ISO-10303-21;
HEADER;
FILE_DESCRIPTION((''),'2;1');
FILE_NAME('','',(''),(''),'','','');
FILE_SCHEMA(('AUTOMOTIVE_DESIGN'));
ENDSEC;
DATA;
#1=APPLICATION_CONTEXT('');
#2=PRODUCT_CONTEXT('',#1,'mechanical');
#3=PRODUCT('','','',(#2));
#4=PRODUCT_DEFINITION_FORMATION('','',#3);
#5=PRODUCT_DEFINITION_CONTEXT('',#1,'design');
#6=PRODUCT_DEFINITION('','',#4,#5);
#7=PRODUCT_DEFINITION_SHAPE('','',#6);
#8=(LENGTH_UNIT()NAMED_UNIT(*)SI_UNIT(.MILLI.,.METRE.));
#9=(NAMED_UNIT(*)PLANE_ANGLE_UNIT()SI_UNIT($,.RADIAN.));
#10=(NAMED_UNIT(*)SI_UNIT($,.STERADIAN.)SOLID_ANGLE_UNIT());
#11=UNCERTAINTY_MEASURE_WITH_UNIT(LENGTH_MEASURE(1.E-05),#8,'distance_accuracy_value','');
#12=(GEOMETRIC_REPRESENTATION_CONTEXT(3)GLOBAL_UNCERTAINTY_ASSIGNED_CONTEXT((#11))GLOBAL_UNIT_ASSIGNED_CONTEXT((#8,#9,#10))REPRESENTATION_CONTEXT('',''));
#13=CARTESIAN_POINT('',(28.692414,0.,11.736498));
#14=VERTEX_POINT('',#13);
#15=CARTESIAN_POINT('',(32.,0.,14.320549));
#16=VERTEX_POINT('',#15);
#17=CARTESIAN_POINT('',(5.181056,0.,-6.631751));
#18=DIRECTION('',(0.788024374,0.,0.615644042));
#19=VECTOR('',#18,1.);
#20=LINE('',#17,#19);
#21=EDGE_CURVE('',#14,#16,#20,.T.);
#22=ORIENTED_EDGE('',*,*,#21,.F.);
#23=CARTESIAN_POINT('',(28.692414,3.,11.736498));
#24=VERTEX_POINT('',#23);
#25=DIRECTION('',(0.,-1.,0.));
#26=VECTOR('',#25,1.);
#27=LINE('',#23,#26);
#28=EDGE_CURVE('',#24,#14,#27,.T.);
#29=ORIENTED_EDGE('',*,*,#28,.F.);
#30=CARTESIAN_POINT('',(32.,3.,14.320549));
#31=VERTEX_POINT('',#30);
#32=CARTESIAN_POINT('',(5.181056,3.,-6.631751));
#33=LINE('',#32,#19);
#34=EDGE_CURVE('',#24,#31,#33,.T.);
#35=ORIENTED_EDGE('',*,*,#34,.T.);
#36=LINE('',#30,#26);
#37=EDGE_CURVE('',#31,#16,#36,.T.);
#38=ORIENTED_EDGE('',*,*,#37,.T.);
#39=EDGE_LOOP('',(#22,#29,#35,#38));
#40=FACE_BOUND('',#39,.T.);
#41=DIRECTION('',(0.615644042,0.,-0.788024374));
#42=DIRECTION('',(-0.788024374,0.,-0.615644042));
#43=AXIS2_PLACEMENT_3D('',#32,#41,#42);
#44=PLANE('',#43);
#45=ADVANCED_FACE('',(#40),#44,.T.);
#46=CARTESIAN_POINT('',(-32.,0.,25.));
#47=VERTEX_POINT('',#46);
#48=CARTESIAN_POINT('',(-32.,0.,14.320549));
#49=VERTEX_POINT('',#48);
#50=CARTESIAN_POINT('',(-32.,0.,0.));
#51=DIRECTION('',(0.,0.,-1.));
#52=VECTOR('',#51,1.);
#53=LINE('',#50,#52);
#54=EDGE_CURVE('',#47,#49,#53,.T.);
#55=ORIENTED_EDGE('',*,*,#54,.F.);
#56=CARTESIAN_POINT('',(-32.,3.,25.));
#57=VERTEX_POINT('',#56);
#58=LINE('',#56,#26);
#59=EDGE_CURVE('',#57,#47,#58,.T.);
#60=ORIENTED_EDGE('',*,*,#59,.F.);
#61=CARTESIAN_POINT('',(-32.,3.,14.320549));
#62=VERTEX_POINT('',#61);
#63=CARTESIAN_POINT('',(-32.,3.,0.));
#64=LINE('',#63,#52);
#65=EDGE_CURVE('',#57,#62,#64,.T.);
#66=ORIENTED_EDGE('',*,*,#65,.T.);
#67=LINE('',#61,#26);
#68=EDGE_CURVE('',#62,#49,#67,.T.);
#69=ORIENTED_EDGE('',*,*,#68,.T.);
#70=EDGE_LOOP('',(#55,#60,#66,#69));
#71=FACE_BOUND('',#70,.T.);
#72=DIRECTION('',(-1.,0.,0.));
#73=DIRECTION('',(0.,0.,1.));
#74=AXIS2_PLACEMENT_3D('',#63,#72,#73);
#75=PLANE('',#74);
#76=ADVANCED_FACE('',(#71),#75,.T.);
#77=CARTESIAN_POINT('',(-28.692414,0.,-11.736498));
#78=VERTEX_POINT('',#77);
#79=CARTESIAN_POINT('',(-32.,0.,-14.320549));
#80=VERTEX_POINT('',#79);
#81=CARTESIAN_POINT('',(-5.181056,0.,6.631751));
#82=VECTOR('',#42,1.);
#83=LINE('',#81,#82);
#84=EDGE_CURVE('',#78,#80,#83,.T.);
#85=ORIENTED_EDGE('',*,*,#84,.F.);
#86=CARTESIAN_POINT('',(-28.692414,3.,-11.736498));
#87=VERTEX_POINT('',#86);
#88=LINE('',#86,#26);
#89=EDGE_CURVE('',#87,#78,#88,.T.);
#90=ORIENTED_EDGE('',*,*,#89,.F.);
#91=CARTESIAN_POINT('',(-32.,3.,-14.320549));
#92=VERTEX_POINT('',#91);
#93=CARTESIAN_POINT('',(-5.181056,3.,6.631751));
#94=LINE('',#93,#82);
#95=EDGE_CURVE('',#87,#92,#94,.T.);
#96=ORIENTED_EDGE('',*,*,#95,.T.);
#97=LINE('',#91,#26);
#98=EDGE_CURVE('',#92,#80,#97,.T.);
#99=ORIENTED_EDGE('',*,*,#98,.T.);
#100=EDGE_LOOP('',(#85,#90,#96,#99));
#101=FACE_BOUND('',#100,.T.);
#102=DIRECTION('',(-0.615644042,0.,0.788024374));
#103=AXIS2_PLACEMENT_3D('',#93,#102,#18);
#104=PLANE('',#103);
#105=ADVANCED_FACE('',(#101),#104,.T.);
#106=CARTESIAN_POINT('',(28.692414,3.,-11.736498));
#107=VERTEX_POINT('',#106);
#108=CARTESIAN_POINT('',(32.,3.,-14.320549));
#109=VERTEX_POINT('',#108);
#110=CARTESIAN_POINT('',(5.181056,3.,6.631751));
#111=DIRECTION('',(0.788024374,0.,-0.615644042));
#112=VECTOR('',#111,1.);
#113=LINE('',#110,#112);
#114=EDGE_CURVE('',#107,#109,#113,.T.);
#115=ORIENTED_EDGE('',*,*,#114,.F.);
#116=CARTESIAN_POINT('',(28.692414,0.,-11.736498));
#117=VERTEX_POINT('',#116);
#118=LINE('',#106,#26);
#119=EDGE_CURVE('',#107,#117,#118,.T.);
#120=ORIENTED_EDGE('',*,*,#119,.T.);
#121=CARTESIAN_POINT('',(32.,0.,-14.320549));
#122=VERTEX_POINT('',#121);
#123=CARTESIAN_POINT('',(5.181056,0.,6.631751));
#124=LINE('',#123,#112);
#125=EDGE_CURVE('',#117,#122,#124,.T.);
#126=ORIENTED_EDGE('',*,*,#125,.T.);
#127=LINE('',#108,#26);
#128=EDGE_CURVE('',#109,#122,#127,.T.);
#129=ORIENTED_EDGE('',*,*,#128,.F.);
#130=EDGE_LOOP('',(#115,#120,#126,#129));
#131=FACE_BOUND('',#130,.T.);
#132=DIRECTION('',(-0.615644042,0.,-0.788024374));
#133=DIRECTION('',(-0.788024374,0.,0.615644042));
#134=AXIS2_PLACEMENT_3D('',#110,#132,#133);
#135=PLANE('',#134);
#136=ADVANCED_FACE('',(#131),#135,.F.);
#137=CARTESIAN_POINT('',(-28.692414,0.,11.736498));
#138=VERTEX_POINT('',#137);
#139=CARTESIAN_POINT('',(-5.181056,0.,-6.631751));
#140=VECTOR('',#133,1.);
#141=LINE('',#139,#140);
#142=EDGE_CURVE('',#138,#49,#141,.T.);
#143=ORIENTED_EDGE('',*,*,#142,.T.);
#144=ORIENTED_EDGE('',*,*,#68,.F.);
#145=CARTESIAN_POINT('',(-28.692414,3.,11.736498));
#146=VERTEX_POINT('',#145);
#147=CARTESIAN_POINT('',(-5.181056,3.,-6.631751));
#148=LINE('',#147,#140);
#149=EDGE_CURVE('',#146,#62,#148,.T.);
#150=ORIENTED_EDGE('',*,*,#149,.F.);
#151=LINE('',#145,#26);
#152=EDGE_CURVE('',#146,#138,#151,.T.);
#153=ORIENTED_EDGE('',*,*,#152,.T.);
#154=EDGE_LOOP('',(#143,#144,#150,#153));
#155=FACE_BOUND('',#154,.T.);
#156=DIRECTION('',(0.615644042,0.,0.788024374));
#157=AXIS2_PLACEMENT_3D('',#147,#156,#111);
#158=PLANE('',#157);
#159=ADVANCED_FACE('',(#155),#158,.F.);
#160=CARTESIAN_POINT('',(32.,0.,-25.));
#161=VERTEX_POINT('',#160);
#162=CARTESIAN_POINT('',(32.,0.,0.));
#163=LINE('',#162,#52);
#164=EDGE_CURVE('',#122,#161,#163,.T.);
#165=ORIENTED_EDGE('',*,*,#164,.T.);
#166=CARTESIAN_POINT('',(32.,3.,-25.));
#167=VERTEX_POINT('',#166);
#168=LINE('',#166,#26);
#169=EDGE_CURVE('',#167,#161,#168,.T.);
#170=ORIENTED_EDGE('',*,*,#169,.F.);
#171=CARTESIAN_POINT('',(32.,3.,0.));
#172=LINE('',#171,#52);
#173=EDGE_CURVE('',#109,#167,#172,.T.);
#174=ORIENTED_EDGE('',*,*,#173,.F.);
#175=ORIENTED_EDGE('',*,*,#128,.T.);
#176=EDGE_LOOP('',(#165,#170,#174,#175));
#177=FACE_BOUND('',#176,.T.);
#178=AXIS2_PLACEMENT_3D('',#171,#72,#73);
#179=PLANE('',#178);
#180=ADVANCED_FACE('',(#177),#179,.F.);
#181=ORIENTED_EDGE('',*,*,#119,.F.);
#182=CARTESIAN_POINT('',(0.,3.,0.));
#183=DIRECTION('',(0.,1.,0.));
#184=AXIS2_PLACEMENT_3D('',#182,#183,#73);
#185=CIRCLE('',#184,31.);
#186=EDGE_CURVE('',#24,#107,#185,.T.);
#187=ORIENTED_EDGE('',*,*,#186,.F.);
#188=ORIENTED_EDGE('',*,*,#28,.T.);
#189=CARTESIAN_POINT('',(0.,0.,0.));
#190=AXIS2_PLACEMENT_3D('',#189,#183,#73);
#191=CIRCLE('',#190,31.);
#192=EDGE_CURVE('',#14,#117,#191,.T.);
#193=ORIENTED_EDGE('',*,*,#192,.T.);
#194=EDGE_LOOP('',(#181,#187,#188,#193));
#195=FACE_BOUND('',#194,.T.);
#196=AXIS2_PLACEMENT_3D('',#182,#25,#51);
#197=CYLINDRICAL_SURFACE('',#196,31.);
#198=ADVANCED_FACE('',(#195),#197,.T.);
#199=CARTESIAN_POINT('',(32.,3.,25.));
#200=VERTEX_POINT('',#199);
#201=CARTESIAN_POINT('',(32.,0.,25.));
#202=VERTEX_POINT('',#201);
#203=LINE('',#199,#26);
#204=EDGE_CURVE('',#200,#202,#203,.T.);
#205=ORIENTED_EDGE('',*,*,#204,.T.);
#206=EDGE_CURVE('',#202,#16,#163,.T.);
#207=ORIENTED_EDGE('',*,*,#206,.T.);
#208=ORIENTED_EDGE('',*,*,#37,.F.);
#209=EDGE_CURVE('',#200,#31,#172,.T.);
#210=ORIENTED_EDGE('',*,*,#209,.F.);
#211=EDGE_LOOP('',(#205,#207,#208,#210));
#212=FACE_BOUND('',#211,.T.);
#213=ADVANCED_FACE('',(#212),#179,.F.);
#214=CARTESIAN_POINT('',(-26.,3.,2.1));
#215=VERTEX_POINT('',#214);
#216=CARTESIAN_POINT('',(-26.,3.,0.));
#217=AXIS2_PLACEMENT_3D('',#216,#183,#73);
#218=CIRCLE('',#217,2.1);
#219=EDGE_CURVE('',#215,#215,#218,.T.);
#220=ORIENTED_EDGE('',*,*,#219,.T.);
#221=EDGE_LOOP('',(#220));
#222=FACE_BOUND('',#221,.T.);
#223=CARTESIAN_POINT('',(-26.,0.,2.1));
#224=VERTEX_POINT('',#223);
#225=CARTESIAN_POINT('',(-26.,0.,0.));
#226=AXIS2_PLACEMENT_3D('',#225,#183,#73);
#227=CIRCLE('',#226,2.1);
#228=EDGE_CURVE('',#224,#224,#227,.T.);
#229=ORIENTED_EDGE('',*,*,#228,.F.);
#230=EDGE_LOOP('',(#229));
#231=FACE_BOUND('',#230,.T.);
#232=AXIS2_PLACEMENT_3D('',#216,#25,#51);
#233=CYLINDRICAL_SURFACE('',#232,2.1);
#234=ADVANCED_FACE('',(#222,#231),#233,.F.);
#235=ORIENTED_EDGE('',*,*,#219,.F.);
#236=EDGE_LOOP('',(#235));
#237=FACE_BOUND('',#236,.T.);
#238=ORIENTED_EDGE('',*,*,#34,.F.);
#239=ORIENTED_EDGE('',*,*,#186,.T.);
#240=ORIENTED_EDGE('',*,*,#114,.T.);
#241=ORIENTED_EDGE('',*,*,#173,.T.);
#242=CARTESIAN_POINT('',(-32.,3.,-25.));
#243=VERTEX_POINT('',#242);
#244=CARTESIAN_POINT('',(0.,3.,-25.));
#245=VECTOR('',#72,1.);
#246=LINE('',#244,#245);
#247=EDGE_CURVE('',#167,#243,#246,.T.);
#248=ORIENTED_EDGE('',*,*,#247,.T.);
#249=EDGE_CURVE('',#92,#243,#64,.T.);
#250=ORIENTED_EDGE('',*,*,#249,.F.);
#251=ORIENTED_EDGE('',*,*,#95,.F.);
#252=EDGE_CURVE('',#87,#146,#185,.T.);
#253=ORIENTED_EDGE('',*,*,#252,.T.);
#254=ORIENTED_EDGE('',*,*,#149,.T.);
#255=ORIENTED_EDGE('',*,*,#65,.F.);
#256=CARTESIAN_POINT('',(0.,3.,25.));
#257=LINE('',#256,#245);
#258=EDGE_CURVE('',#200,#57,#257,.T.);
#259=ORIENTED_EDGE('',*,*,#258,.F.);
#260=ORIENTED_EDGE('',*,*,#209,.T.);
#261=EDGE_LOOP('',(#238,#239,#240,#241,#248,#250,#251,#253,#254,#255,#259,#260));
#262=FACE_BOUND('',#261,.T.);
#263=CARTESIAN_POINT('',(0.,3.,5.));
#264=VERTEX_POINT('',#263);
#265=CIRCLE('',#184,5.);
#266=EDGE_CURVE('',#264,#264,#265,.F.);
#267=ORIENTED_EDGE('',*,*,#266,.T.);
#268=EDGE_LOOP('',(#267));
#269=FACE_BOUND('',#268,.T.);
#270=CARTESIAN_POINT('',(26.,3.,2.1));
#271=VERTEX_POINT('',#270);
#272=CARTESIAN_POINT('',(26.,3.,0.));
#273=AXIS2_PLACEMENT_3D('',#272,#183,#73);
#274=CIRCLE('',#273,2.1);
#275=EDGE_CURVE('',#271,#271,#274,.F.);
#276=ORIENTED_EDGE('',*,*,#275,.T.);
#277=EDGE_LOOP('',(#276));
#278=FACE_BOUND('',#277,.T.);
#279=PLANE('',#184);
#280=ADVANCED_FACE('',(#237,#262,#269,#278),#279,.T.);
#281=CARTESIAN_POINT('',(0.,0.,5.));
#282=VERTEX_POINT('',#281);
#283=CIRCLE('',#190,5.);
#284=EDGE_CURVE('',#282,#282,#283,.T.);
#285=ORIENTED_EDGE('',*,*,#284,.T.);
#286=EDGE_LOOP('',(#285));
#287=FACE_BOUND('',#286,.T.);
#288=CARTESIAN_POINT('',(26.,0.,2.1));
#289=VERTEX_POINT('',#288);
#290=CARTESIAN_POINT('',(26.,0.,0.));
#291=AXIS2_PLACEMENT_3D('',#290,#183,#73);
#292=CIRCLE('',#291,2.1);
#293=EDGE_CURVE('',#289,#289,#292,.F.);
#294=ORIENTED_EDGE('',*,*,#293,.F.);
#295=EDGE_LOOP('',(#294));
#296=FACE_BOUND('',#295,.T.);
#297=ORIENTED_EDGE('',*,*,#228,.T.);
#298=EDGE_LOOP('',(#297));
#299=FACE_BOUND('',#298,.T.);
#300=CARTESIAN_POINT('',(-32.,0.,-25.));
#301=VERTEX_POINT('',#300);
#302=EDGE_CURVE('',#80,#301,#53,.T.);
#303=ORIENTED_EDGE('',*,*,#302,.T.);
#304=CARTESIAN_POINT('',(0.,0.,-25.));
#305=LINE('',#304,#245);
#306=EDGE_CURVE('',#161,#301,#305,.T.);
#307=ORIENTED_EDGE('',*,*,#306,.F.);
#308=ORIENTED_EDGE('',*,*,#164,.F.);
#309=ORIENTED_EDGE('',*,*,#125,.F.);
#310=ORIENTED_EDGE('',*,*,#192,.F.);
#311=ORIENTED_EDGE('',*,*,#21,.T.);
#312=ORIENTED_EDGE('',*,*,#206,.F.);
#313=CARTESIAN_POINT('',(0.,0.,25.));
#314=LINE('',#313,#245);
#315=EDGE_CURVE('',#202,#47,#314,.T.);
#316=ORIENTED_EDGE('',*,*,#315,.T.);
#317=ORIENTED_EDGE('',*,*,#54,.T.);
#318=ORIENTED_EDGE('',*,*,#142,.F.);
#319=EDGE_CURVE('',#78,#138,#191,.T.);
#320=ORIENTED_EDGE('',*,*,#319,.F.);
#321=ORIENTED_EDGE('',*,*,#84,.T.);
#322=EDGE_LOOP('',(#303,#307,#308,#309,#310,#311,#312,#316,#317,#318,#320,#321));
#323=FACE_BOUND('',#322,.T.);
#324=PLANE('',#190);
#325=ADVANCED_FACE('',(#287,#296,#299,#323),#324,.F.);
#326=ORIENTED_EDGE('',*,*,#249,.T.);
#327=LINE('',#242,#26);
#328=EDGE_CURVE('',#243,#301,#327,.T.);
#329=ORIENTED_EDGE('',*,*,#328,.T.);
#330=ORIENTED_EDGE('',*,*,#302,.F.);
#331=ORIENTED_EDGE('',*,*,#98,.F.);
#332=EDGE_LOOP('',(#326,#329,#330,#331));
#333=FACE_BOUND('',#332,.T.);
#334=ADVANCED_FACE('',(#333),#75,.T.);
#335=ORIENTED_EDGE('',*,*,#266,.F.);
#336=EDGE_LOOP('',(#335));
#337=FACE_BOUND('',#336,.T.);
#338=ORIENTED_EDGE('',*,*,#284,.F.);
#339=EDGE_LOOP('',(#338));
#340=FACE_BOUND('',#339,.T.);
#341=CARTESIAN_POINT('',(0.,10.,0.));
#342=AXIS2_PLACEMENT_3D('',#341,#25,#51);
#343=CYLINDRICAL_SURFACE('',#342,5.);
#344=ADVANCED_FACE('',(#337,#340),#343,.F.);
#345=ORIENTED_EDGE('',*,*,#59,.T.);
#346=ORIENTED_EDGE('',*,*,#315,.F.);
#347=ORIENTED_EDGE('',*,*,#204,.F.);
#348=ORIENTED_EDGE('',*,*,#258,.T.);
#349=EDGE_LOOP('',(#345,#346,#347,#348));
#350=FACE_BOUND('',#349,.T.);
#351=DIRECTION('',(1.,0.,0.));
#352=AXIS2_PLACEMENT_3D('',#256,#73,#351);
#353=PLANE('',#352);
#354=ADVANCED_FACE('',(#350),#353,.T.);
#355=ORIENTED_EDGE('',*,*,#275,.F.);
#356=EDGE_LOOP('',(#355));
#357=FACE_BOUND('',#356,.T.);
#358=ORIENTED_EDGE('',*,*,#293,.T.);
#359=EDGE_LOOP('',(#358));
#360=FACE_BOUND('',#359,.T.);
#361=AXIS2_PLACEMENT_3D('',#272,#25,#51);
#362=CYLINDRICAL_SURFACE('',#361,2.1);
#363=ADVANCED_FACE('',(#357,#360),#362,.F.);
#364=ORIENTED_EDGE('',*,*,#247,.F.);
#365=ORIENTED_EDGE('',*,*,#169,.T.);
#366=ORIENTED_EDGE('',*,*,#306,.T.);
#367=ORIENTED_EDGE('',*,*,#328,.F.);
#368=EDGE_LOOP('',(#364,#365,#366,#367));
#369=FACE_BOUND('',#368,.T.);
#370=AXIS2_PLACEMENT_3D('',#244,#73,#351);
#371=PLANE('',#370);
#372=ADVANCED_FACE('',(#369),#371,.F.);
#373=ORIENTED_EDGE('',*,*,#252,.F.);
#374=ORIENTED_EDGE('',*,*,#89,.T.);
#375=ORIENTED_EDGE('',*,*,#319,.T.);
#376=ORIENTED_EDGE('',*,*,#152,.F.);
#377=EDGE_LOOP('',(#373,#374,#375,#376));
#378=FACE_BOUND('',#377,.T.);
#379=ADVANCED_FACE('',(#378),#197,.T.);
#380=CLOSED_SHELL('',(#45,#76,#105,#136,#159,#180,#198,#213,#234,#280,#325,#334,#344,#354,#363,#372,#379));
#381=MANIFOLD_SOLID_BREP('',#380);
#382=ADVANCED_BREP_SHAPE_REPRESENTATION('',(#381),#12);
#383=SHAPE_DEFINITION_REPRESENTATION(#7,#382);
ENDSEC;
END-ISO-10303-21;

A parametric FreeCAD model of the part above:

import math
import FreeCAD as App
import Part
import Sketcher

V = App.Vector
Q = App.Units.Quantity

doc = App.newDocument("Part")
body = doc.addObject("PartDesign::Body", "Body")

sketch1 = body.newObject("Sketcher::SketchObject", "Sketch")
sketch1.AttachmentSupport = (doc.getObject("XZ_Plane"), [""])
sketch1.MapMode = "FlatFace"
sketch1.addGeometry([
    Part.LineSegment(V(32, 25, 0), V(32, 14.320549, 0)),
    Part.LineSegment(V(32, 14.320549, 0), V(28.692414, 11.736498, 0)),
    Part.ArcOfCircle(Part.Circle(V(0, 0, 0), V(0, 0, 1), 31), math.radians(-22.246786), math.radians(22.246786)),
    Part.LineSegment(V(28.692414, -11.736498, 0), V(32, -14.320549, 0)),
    Part.LineSegment(V(32, -14.320549, 0), V(32, -25, 0)),
    Part.LineSegment(V(32, -25, 0), V(-32, -25, 0)),
    Part.LineSegment(V(-32, -25, 0), V(-32, -14.320549, 0)),
    Part.LineSegment(V(-32, -14.320549, 0), V(-28.692414, -11.736498, 0)),
    Part.ArcOfCircle(Part.Circle(V(0, 0, 0), V(0, 0, 1), 31), math.radians(157.753214), math.radians(202.246786)),
    Part.LineSegment(V(-28.692414, 11.736498, 0), V(-32, 14.320549, 0)),
    Part.LineSegment(V(-32, 14.320549, 0), V(-32, 25, 0)),
    Part.LineSegment(V(-32, 25, 0), V(32, 25, 0)),
    Part.Circle(V(-26, 0, 0), V(0, 0, 1), 2.1),
    Part.Circle(V(26, 0, 0), V(0, 0, 1), 2.1),
], False)
sketch1.addConstraint([
    Sketcher.Constraint("Coincident", 0, 2, 1, 1),
    Sketcher.Constraint("Coincident", 1, 2, 2, 2),
    Sketcher.Constraint("Coincident", 2, 1, 3, 1),
    Sketcher.Constraint("Coincident", 3, 2, 4, 1),
    Sketcher.Constraint("Coincident", 4, 2, 5, 1),
    Sketcher.Constraint("Coincident", 5, 2, 6, 1),
    Sketcher.Constraint("Coincident", 6, 2, 7, 1),
    Sketcher.Constraint("Coincident", 7, 2, 8, 2),
    Sketcher.Constraint("Coincident", 8, 1, 9, 1),
    Sketcher.Constraint("Coincident", 9, 2, 10, 1),
    Sketcher.Constraint("Coincident", 10, 2, 11, 1),
    Sketcher.Constraint("Coincident", 11, 2, 0, 1),
    Sketcher.Constraint("Vertical", 0),
    Sketcher.Constraint("Vertical", 4),
    Sketcher.Constraint("Horizontal", 5),
    Sketcher.Constraint("Vertical", 6),
    Sketcher.Constraint("Vertical", 10),
    Sketcher.Constraint("Horizontal", 11),
    Sketcher.Constraint("Coincident", 2, 3, -1, 1),
    Sketcher.Constraint("Coincident", 8, 3, -1, 1),
    Sketcher.Constraint("Equal", 2, 8),
    Sketcher.Constraint("Equal", 12, 13),
    Sketcher.Constraint("Symmetric", 12, 3, 13, 3, -1, 1),
    Sketcher.Constraint("Symmetric", 0, 2, 6, 2, -1, 1),
    Sketcher.Constraint("Symmetric", 3, 2, 9, 2, -1, 1),
    Sketcher.Constraint("Symmetric", 3, 2, 6, 2, -2),
    Sketcher.Constraint("PointOnObject", 12, 3, -1),
    Sketcher.Constraint("Parallel", 1, 7),
    Sketcher.Constraint("Parallel", 3, 9),
    Sketcher.Constraint("Horizontal", 2, 1, 7, 2),
    Sketcher.Constraint("Equal", 0, 4),
    Sketcher.Constraint("Radius", 2, Q("31 mm")),
    Sketcher.Constraint("Diameter", 12, Q("4.2 mm")),
    Sketcher.Constraint("DistanceX", 5, 2, 5, 1, Q("64 mm")),
    Sketcher.Constraint("DistanceX", 12, 3, -1, 1, Q("26 mm")),
    Sketcher.Constraint("DistanceY", 4, 2, -1, 1, Q("25 mm")),
    Sketcher.Constraint("DistanceY", 0, 2, 0, 1, Q("10.679451 mm")),
    Sketcher.Constraint("DistanceY", 1, 2, 0, 2, Q("2.584052 mm")),
])
pad1 = body.newObject("PartDesign::Pad", "Pad")
pad1.Profile = sketch1
pad1.Length = 3
pad1.Reversed = True

sketch2 = body.newObject("Sketcher::SketchObject", "Sketch001")
sketch2.AttachmentSupport = (doc.getObject("XZ_Plane"), [""])
sketch2.MapMode = "FlatFace"
sketch2.addGeometry(Part.Circle(V(0, 0, 0), V(0, 0, 1), 5), False)
sketch2.addConstraint([
    Sketcher.Constraint("Coincident", 0, 3, -1, 1),
    Sketcher.Constraint("Diameter", 0, Q("10 mm")),
])
pocket1 = body.newObject("PartDesign::Pocket", "Pocket")
pocket1.Profile = sketch2
pocket1.Length = 10

doc.recompute()
